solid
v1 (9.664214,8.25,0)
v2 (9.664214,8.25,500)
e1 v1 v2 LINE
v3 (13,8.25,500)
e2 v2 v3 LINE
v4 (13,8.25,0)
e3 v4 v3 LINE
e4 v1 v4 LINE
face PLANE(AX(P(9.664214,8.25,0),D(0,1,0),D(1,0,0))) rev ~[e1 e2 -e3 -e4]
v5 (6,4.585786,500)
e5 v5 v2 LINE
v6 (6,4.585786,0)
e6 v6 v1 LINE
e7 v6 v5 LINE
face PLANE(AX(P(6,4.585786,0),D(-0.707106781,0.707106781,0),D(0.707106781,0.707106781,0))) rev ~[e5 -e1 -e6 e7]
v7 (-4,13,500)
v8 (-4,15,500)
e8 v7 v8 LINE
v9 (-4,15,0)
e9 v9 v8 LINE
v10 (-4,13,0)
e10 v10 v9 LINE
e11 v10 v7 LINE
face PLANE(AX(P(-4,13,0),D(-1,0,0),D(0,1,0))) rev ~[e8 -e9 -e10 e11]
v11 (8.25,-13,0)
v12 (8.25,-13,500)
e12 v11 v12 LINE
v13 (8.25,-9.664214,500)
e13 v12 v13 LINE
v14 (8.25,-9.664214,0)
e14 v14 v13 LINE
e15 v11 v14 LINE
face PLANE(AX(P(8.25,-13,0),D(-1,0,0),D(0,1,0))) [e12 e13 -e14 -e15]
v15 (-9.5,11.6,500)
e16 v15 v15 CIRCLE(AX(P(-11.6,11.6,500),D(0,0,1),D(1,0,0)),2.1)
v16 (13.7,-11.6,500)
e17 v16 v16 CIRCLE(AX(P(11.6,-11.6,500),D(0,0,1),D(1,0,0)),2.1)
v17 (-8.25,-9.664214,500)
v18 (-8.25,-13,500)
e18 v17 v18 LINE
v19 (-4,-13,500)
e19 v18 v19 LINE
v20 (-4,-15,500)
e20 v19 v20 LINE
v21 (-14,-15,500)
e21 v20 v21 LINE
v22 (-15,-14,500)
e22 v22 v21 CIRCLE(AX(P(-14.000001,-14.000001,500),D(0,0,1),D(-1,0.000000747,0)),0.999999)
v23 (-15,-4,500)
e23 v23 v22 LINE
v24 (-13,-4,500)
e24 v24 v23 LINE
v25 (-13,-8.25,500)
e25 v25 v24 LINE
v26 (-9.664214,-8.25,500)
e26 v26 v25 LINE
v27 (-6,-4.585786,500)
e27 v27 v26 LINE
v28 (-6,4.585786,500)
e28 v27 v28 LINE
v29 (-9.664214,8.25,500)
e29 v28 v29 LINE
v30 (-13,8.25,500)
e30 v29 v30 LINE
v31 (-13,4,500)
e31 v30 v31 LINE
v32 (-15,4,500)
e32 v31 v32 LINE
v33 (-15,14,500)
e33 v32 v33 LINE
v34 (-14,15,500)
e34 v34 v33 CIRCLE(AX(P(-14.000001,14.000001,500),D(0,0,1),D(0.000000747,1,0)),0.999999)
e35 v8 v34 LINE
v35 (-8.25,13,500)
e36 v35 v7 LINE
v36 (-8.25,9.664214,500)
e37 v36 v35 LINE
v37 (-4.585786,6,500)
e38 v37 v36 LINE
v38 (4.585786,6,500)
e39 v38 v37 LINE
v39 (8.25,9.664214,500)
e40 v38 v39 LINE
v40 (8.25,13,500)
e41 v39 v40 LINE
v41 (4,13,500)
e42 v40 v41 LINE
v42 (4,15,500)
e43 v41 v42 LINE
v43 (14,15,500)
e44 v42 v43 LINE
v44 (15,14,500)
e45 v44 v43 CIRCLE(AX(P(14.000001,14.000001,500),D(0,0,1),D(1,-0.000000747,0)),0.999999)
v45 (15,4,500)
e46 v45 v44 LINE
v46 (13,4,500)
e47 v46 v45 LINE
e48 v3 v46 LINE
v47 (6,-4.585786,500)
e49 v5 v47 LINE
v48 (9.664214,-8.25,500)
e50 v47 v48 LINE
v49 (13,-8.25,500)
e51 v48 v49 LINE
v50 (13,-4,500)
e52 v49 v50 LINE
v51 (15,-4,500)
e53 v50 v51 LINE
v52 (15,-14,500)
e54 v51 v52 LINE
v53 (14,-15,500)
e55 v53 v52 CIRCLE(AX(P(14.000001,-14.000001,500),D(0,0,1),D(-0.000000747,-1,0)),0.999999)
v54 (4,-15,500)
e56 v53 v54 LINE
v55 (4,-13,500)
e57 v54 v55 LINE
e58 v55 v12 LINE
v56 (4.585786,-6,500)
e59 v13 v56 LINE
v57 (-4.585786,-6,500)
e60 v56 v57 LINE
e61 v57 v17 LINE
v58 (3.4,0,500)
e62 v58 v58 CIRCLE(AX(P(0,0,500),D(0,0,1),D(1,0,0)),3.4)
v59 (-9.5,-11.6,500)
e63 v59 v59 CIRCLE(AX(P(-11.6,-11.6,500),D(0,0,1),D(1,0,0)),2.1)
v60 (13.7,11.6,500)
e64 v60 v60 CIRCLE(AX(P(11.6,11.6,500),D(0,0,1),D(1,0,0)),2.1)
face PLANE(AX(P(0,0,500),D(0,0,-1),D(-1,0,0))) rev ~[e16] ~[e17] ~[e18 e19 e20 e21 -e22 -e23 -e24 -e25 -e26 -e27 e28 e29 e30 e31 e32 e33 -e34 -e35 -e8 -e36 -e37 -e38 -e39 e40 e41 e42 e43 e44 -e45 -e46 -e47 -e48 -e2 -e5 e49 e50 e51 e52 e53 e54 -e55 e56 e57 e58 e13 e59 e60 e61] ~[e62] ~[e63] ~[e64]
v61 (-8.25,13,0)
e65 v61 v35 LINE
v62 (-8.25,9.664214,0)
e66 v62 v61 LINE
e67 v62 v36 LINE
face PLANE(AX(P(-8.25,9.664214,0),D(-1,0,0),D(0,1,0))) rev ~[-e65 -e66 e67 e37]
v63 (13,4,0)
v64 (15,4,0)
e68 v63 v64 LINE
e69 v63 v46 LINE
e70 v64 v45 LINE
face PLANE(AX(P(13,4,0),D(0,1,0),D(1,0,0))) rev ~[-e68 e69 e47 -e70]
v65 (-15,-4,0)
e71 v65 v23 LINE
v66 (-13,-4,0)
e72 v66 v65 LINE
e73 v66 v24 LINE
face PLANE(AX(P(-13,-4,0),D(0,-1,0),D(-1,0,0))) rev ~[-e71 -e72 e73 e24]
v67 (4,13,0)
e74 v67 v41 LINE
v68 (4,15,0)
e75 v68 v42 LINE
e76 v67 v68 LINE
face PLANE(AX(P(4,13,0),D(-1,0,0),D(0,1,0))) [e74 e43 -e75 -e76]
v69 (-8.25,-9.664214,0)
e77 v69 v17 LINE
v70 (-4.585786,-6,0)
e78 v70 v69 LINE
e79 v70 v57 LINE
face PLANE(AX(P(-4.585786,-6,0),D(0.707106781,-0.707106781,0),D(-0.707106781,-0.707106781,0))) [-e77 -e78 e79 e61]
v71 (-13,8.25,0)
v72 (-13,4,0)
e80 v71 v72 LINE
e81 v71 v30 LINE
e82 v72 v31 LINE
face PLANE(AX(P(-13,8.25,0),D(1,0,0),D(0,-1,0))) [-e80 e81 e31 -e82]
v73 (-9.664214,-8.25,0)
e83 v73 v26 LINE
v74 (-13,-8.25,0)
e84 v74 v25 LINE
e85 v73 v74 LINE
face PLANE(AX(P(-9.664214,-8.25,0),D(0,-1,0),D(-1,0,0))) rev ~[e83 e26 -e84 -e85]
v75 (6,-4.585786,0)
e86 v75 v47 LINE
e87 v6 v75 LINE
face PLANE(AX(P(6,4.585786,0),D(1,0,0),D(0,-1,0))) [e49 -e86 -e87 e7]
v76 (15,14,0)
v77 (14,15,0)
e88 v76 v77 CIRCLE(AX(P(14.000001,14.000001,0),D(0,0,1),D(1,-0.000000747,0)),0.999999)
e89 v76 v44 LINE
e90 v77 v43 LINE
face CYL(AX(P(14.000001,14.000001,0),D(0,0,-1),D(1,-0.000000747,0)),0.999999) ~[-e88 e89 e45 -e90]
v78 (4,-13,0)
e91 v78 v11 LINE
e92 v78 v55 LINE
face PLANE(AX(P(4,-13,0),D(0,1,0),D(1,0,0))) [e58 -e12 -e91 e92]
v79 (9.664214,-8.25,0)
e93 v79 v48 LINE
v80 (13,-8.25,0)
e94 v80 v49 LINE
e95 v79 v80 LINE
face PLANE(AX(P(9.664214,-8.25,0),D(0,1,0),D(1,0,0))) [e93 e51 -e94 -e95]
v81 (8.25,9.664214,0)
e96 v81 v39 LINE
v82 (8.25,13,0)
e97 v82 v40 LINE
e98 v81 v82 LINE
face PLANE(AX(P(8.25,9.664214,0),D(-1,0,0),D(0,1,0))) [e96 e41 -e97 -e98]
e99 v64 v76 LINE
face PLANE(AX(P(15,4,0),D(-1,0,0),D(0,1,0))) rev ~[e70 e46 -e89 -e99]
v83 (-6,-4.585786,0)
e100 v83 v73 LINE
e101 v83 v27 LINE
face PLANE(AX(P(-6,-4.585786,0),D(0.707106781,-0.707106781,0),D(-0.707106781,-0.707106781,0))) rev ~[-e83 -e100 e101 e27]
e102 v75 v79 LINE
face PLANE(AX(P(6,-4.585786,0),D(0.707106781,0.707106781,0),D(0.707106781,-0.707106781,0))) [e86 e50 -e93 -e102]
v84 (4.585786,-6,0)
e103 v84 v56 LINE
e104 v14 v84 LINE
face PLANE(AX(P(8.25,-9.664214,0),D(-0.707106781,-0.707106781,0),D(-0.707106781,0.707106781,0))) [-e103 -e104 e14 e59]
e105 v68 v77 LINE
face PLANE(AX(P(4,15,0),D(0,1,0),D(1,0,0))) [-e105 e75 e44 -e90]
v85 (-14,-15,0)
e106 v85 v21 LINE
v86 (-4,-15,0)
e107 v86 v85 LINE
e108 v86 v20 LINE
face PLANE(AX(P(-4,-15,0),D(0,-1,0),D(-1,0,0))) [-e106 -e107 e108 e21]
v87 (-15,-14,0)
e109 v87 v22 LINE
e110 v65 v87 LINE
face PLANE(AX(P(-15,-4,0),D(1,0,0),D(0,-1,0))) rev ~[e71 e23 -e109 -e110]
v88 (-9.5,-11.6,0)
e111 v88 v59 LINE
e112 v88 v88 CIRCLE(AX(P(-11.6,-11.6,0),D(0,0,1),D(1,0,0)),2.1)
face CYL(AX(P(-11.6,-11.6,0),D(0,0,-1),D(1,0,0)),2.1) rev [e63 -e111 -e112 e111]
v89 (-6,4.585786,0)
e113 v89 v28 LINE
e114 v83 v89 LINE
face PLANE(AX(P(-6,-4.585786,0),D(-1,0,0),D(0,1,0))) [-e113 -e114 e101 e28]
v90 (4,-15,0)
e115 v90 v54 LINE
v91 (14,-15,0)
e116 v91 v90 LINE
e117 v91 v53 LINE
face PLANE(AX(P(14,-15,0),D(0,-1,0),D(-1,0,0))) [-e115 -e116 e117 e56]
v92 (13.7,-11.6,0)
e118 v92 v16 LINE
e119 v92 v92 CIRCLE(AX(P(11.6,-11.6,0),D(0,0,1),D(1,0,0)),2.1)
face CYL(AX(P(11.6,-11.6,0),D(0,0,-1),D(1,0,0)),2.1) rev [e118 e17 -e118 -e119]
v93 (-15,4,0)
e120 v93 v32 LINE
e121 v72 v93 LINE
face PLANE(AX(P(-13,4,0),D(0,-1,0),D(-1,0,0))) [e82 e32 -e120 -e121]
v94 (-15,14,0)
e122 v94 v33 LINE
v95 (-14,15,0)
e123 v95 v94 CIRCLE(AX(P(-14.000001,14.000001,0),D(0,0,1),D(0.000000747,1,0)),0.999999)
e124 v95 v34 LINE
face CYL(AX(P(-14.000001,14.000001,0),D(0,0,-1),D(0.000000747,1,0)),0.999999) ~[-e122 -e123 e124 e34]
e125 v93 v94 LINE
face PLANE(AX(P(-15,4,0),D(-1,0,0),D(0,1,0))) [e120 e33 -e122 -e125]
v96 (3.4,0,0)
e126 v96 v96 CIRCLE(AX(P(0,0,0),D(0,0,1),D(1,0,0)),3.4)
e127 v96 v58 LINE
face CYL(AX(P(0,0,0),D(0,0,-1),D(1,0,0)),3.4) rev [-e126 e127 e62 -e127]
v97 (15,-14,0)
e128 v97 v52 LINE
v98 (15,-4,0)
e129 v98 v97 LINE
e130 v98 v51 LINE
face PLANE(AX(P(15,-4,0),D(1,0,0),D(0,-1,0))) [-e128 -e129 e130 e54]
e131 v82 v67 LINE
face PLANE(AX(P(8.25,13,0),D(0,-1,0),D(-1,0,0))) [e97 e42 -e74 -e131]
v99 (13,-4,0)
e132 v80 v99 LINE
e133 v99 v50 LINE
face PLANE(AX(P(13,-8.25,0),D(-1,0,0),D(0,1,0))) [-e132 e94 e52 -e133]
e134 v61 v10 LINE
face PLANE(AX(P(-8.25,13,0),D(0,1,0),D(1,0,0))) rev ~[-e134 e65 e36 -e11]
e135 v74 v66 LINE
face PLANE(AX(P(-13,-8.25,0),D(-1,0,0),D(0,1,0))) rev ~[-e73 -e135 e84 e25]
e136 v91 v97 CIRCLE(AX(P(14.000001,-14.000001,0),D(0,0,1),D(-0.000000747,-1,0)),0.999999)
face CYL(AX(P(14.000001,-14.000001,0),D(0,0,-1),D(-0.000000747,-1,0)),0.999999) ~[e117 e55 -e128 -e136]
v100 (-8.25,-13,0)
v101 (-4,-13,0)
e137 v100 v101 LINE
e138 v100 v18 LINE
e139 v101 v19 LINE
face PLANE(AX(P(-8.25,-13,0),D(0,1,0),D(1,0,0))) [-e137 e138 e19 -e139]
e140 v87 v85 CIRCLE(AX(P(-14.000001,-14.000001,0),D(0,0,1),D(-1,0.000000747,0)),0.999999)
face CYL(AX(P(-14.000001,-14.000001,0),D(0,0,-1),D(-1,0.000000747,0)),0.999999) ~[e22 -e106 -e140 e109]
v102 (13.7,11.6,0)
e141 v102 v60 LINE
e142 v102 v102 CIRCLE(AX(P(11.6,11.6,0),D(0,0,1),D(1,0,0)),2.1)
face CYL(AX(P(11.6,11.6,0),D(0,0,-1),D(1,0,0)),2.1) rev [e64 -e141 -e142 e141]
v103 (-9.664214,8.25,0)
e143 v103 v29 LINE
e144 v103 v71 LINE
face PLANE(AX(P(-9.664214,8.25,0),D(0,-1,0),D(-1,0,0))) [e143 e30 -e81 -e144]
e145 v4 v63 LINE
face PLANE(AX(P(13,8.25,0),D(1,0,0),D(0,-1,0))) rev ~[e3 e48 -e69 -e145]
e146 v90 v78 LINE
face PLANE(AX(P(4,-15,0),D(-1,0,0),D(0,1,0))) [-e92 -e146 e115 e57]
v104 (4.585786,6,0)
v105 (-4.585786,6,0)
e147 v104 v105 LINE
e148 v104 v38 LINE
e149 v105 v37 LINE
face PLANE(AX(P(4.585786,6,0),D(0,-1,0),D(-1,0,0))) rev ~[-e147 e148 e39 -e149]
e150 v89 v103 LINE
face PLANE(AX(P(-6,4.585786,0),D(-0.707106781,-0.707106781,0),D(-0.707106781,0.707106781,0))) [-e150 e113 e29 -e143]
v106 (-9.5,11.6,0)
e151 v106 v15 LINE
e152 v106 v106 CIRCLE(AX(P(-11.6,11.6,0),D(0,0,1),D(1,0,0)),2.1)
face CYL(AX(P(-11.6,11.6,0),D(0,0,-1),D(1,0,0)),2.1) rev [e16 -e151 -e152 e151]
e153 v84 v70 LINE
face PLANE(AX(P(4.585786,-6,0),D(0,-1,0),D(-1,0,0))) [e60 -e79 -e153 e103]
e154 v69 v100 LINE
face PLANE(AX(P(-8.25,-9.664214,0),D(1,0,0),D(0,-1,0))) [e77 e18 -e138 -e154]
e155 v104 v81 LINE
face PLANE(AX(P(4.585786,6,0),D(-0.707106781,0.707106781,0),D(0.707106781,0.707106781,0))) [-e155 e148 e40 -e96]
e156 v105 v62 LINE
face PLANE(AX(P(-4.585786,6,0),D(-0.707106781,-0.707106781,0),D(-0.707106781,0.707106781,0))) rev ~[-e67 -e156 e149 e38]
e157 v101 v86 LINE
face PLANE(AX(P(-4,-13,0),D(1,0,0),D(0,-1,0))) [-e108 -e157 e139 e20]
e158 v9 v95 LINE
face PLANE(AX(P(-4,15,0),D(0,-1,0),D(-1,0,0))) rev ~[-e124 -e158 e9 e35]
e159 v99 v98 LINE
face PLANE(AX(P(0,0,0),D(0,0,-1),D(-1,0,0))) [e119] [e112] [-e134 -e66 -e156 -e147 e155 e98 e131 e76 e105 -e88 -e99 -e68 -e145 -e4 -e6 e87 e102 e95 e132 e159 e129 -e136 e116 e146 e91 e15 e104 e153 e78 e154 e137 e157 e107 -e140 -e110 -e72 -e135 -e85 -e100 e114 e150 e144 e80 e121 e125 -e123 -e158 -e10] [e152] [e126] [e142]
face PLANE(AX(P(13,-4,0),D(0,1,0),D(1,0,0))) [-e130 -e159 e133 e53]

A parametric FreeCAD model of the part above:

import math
import FreeCAD as App
import Part
import Sketcher

V = App.Vector

doc = App.newDocument("Part")
body = doc.addObject("PartDesign::Body", "Body")

# Sketch on XY plane
sketch1 = body.newObject("Sketcher::SketchObject", "Sketch")
sketch1.AttachmentSupport = (doc.getObject("XY_Plane"), [""])
sketch1.MapMode = "FlatFace"
sketch1.addGeometry([
    Part.LineSegment(V(-6, 4.6, 0), V(-6, -4.6, 0)),  # 0
    Part.LineSegment(V(-6, -4.6, 0), V(-9.7, -8.2, 0)),  # 1
    Part.LineSegment(V(-9.7, -8.2, 0), V(-13, -8.2, 0)),  # 2
    Part.LineSegment(V(-13, -8.2, 0), V(-13, -4, 0)),  # 3
    Part.LineSegment(V(-13, -4, 0), V(-15, -4, 0)),  # 4
    Part.LineSegment(V(-15, -4, 0), V(-15, -14, 0)),  # 5
    Part.ArcOfCircle(Part.Circle(V(-14, -14, 0), V(0, 0, 1), 1), math.radians(180), math.radians(270)),  # 6
    Part.LineSegment(V(-14, -15, 0), V(-4, -15, 0)),  # 7
    Part.LineSegment(V(-4, -15, 0), V(-4, -13, 0)),  # 8
    Part.LineSegment(V(-4, -13, 0), V(-8.2, -13, 0)),  # 9
    Part.LineSegment(V(-8.2, -13, 0), V(-8.2, -9.7, 0)),  # 10
    Part.LineSegment(V(-8.2, -9.7, 0), V(-4.6, -6, 0)),  # 11
    Part.LineSegment(V(-4.6, -6, 0), V(4.6, -6, 0)),  # 12
    Part.LineSegment(V(4.6, -6, 0), V(8.2, -9.7, 0)),  # 13
    Part.LineSegment(V(8.2, -9.7, 0), V(8.2, -13, 0)),  # 14
    Part.LineSegment(V(8.2, -13, 0), V(4, -13, 0)),  # 15
    Part.LineSegment(V(4, -13, 0), V(4, -15, 0)),  # 16
    Part.LineSegment(V(4, -15, 0), V(14, -15, 0)),  # 17
    Part.ArcOfCircle(Part.Circle(V(14, -14, 0), V(0, 0, 1), 1), math.radians(-90), math.radians(0)),  # 18
    Part.LineSegment(V(15, -14, 0), V(15, -4, 0)),  # 19
    Part.LineSegment(V(15, -4, 0), V(13, -4, 0)),  # 20
    Part.LineSegment(V(13, -4, 0), V(13, -8.2, 0)),  # 21
    Part.LineSegment(V(13, -8.2, 0), V(9.7, -8.2, 0)),  # 22
    Part.LineSegment(V(9.7, -8.2, 0), V(6, -4.6, 0)),  # 23
    Part.LineSegment(V(6, -4.6, 0), V(6, 4.6, 0)),  # 24
    Part.LineSegment(V(6, 4.6, 0), V(9.7, 8.2, 0)),  # 25
    Part.LineSegment(V(9.7, 8.2, 0), V(13, 8.2, 0)),  # 26
    Part.LineSegment(V(13, 8.2, 0), V(13, 4, 0)),  # 27
    Part.LineSegment(V(13, 4, 0), V(15, 4, 0)),  # 28
    Part.LineSegment(V(15, 4, 0), V(15, 14, 0)),  # 29
    Part.ArcOfCircle(Part.Circle(V(14, 14, 0), V(0, 0, 1), 1), math.radians(0), math.radians(90)),  # 30
    Part.LineSegment(V(14, 15, 0), V(4, 15, 0)),  # 31
    Part.LineSegment(V(4, 15, 0), V(4, 13, 0)),  # 32
    Part.LineSegment(V(4, 13, 0), V(8.2, 13, 0)),  # 33
    Part.LineSegment(V(8.2, 13, 0), V(8.2, 9.7, 0)),  # 34
    Part.LineSegment(V(8.2, 9.7, 0), V(4.6, 6, 0)),  # 35
    Part.LineSegment(V(4.6, 6, 0), V(-4.6, 6, 0)),  # 36
    Part.LineSegment(V(-4.6, 6, 0), V(-8.2, 9.7, 0)),  # 37
    Part.LineSegment(V(-8.2, 9.7, 0), V(-8.2, 13, 0)),  # 38
    Part.LineSegment(V(-8.2, 13, 0), V(-4, 13, 0)),  # 39
    Part.LineSegment(V(-4, 13, 0), V(-4, 15, 0)),  # 40
    Part.LineSegment(V(-4, 15, 0), V(-14, 15, 0)),  # 41
    Part.ArcOfCircle(Part.Circle(V(-14, 14, 0), V(0, 0, 1), 1), math.radians(90), math.radians(180)),  # 42
    Part.LineSegment(V(-15, 14, 0), V(-15, 4, 0)),  # 43
    Part.LineSegment(V(-15, 4, 0), V(-13, 4, 0)),  # 44
    Part.LineSegment(V(-13, 4, 0), V(-13, 8.2, 0)),  # 45
    Part.LineSegment(V(-13, 8.2, 0), V(-9.7, 8.2, 0)),  # 46
    Part.LineSegment(V(-9.7, 8.2, 0), V(-6, 4.6, 0)),  # 47
    Part.Circle(V(11.6, -11.6, 0), V(0, 0, 1), 2.1),  # 48
    Part.Circle(V(-11.6, -11.6, 0), V(0, 0, 1), 2.1),  # 49
    Part.Circle(V(11.6, 11.6, 0), V(0, 0, 1), 2.1),  # 50
    Part.Circle(V(0, 0, 0), V(0, 0, 1), 3.4),  # 51
    Part.Circle(V(-11.6, 11.6, 0), V(0, 0, 1), 2.1),  # 52
], False)
sketch1.addConstraint([
    Sketcher.Constraint("Coincident", 0, 2, 1, 1),
    Sketcher.Constraint("Coincident", 1, 2, 2, 1),
    Sketcher.Constraint("Coincident", 2, 2, 3, 1),
    Sketcher.Constraint("Coincident", 3, 2, 4, 1),
    Sketcher.Constraint("Coincident", 4, 2, 5, 1),
    Sketcher.Constraint("Tangent", 5, 2, 6, 1),
    Sketcher.Constraint("Tangent", 6, 2, 7, 1),
    Sketcher.Constraint("Coincident", 7, 2, 8, 1),
    Sketcher.Constraint("Coincident", 8, 2, 9, 1),
    Sketcher.Constraint("Coincident", 9, 2, 10, 1),
    Sketcher.Constraint("Coincident", 10, 2, 11, 1),
    Sketcher.Constraint("Coincident", 11, 2, 12, 1),
    Sketcher.Constraint("Coincident", 12, 2, 13, 1),
    Sketcher.Constraint("Coincident", 13, 2, 14, 1),
    Sketcher.Constraint("Coincident", 14, 2, 15, 1),
    Sketcher.Constraint("Coincident", 15, 2, 16, 1),
    Sketcher.Constraint("Coincident", 16, 2, 17, 1),
    Sketcher.Constraint("Tangent", 17, 2, 18, 1),
    Sketcher.Constraint("Tangent", 18, 2, 19, 1),
    Sketcher.Constraint("Coincident", 19, 2, 20, 1),
    Sketcher.Constraint("Coincident", 20, 2, 21, 1),
    Sketcher.Constraint("Coincident", 21, 2, 22, 1),
    Sketcher.Constraint("Coincident", 22, 2, 23, 1),
    Sketcher.Constraint("Coincident", 23, 2, 24, 1),
    Sketcher.Constraint("Coincident", 24, 2, 25, 1),
    Sketcher.Constraint("Coincident", 25, 2, 26, 1),
    Sketcher.Constraint("Coincident", 26, 2, 27, 1),
    Sketcher.Constraint("Coincident", 27, 2, 28, 1),
    Sketcher.Constraint("Coincident", 28, 2, 29, 1),
    Sketcher.Constraint("Tangent", 29, 2, 30, 1),
    Sketcher.Constraint("Tangent", 30, 2, 31, 1),
    Sketcher.Constraint("Coincident", 31, 2, 32, 1),
    Sketcher.Constraint("Coincident", 32, 2, 33, 1),
    Sketcher.Constraint("Coincident", 33, 2, 34, 1),
    Sketcher.Constraint("Coincident", 34, 2, 35, 1),
    Sketcher.Constraint("Coincident", 35, 2, 36, 1),
    Sketcher.Constraint("Coincident", 36, 2, 37, 1),
    Sketcher.Constraint("Coincident", 37, 2, 38, 1),
    Sketcher.Constraint("Coincident", 38, 2, 39, 1),
    Sketcher.Constraint("Coincident", 39, 2, 40, 1),
    Sketcher.Constraint("Coincident", 40, 2, 41, 1),
    Sketcher.Constraint("Tangent", 41, 2, 42, 1),
    Sketcher.Constraint("Tangent", 42, 2, 43, 1),
    Sketcher.Constraint("Coincident", 43, 2, 44, 1),
    Sketcher.Constraint("Coincident", 44, 2, 45, 1),
    Sketcher.Constraint("Coincident", 45, 2, 46, 1),
    Sketcher.Constraint("Coincident", 46, 2, 47, 1),
    Sketcher.Constraint("Coincident", 47, 2, 0, 1),
    Sketcher.Constraint("Vertical", 0),
    Sketcher.Constraint("Horizontal", 2),
    Sketcher.Constraint("Vertical", 3),
    Sketcher.Constraint("Horizontal", 4),
    Sketcher.Constraint("Vertical", 5),
    Sketcher.Constraint("Horizontal", 7),
    Sketcher.Constraint("Vertical", 8),
    Sketcher.Constraint("Horizontal", 9),
    Sketcher.Constraint("Vertical", 10),
    Sketcher.Constraint("Horizontal", 12),
    Sketcher.Constraint("Vertical", 14),
    Sketcher.Constraint("Horizontal", 15),
    Sketcher.Constraint("Vertical", 16),
    Sketcher.Constraint("Horizontal", 17),
    Sketcher.Constraint("Vertical", 19),
    Sketcher.Constraint("Horizontal", 20),
    Sketcher.Constraint("Vertical", 21),
    Sketcher.Constraint("Horizontal", 22),
    Sketcher.Constraint("Vertical", 24),
    Sketcher.Constraint("Horizontal", 26),
    Sketcher.Constraint("Vertical", 27),
    Sketcher.Constraint("Horizontal", 28),
    Sketcher.Constraint("Vertical", 29),
    Sketcher.Constraint("Horizontal", 31),
    Sketcher.Constraint("Vertical", 32),
    Sketcher.Constraint("Horizontal", 33),
    Sketcher.Constraint("Vertical", 34),
    Sketcher.Constraint("Horizontal", 36),
    Sketcher.Constraint("Vertical", 38),
    Sketcher.Constraint("Horizontal", 39),
    Sketcher.Constraint("Vertical", 40),
    Sketcher.Constraint("Horizontal", 41),
    Sketcher.Constraint("Vertical", 43),
    Sketcher.Constraint("Horizontal", 44),
    Sketcher.Constraint("Vertical", 45),
    Sketcher.Constraint("Horizontal", 46),
    Sketcher.Constraint("Coincident", 51, 3, -1, 1),
    Sketcher.Constraint("Equal", 6, 18),
    Sketcher.Constraint("Equal", 18, 30),
    Sketcher.Constraint("Equal", 30, 42),
    Sketcher.Constraint("Equal", 48, 49),
    Sketcher.Constraint("Equal", 49, 50),
    Sketcher.Constraint("Equal", 50, 52),
    Sketcher.Constraint("Symmetric", 6, 3, 30, 3, -1, 1),
    Sketcher.Constraint("Symmetric", 18, 3, 42, 3, -1, 1),
    Sketcher.Constraint("Symmetric", 49, 3, 50, 3, -1, 1),
    Sketcher.Constraint("Symmetric", 48, 3, 52, 3, -1, 1),
    Sketcher.Constraint("Symmetric", 0, 2, 24, 2, -1, 1),
    Sketcher.Constraint("Symmetric", 1, 2, 25, 2, -1, 1),
    Sketcher.Constraint("Symmetric", 3, 2, 27, 2, -1, 1),
    Sketcher.Constraint("Symmetric", 8, 2, 32, 2, -1, 1),
    Sketcher.Constraint("Symmetric", 10, 2, 34, 2, -1, 1),
    Sketcher.Constraint("Symmetric", 11, 2, 35, 2, -1, 1),
    Sketcher.Constraint("Symmetric", 13, 2, 37, 2, -1, 1),
    Sketcher.Constraint("Symmetric", 15, 2, 39, 2, -1, 1),
    Sketcher.Constraint("Symmetric", 20, 2, 44, 2, -1, 1),
    Sketcher.Constraint("Symmetric", 22, 2, 46, 2, -1, 1),
    Sketcher.Constraint("Symmetric", 6, 3, 18, 3, -2),
    Sketcher.Constraint("Symmetric", 48, 3, 49, 3, -2),
    Sketcher.Constraint("Symmetric", 10, 2, 13, 2, -2),
    Sketcher.Constraint("Symmetric", 8, 2, 15, 2, -2),
    Sketcher.Constraint("Symmetric", 3, 2, 20, 2, -2),
    Sketcher.Constraint("Symmetric", 1, 2, 22, 2, -2),
    Sketcher.Constraint("Parallel", 1, 11),
    Sketcher.Constraint("Perpendicular", 11, 13),
    Sketcher.Constraint("Parallel", 13, 23),
    Sketcher.Constraint("Perpendicular", 35, 37),
    Sketcher.Constraint("Parallel", 37, 47),
    Sketcher.Constraint("Horizontal", 0, 2, 23, 2),
    Sketcher.Constraint("Equal", 36, 0),
    Sketcher.Constraint("Equal", 39, 3),
    Sketcher.Constraint("Equal", 41, 5),
    Sketcher.Constraint("Equal", 44, 8),
    Sketcher.Constraint("Equal", 46, 10),
    Sketcher.Constraint("Equal", 1, 11),
    Sketcher.Constraint("Radius", 6, 0.999999),
    Sketcher.Constraint("Diameter", 48, 4.2),
    Sketcher.Constraint("Diameter", 51, 6.8),
    Sketcher.Constraint("DistanceX", 4, 2, 4, 1, 2.0),
    Sketcher.Constraint("DistanceX", 7, 1, 7, 2, 10.0),
    Sketcher.Constraint("DistanceX", 6, 3, -1, 1, 14.000001),
    Sketcher.Constraint("DistanceX", 0, 2, -1, 1, 6.0),
    Sketcher.Constraint("DistanceX", 9, 2, 9, 1, 4.25),
    Sketcher.Constraint("DistanceX", -1, 1, 48, 3, 11.6),
    Sketcher.Constraint("DistanceY", 48, 3, -1, 1, 11.6),
    Sketcher.Constraint("Distance", 1, 5.181981),
])
pad1 = body.newObject("PartDesign::Pad", "Pad")
pad1.Profile = sketch1
pad1.Length = 500

doc.recompute()
